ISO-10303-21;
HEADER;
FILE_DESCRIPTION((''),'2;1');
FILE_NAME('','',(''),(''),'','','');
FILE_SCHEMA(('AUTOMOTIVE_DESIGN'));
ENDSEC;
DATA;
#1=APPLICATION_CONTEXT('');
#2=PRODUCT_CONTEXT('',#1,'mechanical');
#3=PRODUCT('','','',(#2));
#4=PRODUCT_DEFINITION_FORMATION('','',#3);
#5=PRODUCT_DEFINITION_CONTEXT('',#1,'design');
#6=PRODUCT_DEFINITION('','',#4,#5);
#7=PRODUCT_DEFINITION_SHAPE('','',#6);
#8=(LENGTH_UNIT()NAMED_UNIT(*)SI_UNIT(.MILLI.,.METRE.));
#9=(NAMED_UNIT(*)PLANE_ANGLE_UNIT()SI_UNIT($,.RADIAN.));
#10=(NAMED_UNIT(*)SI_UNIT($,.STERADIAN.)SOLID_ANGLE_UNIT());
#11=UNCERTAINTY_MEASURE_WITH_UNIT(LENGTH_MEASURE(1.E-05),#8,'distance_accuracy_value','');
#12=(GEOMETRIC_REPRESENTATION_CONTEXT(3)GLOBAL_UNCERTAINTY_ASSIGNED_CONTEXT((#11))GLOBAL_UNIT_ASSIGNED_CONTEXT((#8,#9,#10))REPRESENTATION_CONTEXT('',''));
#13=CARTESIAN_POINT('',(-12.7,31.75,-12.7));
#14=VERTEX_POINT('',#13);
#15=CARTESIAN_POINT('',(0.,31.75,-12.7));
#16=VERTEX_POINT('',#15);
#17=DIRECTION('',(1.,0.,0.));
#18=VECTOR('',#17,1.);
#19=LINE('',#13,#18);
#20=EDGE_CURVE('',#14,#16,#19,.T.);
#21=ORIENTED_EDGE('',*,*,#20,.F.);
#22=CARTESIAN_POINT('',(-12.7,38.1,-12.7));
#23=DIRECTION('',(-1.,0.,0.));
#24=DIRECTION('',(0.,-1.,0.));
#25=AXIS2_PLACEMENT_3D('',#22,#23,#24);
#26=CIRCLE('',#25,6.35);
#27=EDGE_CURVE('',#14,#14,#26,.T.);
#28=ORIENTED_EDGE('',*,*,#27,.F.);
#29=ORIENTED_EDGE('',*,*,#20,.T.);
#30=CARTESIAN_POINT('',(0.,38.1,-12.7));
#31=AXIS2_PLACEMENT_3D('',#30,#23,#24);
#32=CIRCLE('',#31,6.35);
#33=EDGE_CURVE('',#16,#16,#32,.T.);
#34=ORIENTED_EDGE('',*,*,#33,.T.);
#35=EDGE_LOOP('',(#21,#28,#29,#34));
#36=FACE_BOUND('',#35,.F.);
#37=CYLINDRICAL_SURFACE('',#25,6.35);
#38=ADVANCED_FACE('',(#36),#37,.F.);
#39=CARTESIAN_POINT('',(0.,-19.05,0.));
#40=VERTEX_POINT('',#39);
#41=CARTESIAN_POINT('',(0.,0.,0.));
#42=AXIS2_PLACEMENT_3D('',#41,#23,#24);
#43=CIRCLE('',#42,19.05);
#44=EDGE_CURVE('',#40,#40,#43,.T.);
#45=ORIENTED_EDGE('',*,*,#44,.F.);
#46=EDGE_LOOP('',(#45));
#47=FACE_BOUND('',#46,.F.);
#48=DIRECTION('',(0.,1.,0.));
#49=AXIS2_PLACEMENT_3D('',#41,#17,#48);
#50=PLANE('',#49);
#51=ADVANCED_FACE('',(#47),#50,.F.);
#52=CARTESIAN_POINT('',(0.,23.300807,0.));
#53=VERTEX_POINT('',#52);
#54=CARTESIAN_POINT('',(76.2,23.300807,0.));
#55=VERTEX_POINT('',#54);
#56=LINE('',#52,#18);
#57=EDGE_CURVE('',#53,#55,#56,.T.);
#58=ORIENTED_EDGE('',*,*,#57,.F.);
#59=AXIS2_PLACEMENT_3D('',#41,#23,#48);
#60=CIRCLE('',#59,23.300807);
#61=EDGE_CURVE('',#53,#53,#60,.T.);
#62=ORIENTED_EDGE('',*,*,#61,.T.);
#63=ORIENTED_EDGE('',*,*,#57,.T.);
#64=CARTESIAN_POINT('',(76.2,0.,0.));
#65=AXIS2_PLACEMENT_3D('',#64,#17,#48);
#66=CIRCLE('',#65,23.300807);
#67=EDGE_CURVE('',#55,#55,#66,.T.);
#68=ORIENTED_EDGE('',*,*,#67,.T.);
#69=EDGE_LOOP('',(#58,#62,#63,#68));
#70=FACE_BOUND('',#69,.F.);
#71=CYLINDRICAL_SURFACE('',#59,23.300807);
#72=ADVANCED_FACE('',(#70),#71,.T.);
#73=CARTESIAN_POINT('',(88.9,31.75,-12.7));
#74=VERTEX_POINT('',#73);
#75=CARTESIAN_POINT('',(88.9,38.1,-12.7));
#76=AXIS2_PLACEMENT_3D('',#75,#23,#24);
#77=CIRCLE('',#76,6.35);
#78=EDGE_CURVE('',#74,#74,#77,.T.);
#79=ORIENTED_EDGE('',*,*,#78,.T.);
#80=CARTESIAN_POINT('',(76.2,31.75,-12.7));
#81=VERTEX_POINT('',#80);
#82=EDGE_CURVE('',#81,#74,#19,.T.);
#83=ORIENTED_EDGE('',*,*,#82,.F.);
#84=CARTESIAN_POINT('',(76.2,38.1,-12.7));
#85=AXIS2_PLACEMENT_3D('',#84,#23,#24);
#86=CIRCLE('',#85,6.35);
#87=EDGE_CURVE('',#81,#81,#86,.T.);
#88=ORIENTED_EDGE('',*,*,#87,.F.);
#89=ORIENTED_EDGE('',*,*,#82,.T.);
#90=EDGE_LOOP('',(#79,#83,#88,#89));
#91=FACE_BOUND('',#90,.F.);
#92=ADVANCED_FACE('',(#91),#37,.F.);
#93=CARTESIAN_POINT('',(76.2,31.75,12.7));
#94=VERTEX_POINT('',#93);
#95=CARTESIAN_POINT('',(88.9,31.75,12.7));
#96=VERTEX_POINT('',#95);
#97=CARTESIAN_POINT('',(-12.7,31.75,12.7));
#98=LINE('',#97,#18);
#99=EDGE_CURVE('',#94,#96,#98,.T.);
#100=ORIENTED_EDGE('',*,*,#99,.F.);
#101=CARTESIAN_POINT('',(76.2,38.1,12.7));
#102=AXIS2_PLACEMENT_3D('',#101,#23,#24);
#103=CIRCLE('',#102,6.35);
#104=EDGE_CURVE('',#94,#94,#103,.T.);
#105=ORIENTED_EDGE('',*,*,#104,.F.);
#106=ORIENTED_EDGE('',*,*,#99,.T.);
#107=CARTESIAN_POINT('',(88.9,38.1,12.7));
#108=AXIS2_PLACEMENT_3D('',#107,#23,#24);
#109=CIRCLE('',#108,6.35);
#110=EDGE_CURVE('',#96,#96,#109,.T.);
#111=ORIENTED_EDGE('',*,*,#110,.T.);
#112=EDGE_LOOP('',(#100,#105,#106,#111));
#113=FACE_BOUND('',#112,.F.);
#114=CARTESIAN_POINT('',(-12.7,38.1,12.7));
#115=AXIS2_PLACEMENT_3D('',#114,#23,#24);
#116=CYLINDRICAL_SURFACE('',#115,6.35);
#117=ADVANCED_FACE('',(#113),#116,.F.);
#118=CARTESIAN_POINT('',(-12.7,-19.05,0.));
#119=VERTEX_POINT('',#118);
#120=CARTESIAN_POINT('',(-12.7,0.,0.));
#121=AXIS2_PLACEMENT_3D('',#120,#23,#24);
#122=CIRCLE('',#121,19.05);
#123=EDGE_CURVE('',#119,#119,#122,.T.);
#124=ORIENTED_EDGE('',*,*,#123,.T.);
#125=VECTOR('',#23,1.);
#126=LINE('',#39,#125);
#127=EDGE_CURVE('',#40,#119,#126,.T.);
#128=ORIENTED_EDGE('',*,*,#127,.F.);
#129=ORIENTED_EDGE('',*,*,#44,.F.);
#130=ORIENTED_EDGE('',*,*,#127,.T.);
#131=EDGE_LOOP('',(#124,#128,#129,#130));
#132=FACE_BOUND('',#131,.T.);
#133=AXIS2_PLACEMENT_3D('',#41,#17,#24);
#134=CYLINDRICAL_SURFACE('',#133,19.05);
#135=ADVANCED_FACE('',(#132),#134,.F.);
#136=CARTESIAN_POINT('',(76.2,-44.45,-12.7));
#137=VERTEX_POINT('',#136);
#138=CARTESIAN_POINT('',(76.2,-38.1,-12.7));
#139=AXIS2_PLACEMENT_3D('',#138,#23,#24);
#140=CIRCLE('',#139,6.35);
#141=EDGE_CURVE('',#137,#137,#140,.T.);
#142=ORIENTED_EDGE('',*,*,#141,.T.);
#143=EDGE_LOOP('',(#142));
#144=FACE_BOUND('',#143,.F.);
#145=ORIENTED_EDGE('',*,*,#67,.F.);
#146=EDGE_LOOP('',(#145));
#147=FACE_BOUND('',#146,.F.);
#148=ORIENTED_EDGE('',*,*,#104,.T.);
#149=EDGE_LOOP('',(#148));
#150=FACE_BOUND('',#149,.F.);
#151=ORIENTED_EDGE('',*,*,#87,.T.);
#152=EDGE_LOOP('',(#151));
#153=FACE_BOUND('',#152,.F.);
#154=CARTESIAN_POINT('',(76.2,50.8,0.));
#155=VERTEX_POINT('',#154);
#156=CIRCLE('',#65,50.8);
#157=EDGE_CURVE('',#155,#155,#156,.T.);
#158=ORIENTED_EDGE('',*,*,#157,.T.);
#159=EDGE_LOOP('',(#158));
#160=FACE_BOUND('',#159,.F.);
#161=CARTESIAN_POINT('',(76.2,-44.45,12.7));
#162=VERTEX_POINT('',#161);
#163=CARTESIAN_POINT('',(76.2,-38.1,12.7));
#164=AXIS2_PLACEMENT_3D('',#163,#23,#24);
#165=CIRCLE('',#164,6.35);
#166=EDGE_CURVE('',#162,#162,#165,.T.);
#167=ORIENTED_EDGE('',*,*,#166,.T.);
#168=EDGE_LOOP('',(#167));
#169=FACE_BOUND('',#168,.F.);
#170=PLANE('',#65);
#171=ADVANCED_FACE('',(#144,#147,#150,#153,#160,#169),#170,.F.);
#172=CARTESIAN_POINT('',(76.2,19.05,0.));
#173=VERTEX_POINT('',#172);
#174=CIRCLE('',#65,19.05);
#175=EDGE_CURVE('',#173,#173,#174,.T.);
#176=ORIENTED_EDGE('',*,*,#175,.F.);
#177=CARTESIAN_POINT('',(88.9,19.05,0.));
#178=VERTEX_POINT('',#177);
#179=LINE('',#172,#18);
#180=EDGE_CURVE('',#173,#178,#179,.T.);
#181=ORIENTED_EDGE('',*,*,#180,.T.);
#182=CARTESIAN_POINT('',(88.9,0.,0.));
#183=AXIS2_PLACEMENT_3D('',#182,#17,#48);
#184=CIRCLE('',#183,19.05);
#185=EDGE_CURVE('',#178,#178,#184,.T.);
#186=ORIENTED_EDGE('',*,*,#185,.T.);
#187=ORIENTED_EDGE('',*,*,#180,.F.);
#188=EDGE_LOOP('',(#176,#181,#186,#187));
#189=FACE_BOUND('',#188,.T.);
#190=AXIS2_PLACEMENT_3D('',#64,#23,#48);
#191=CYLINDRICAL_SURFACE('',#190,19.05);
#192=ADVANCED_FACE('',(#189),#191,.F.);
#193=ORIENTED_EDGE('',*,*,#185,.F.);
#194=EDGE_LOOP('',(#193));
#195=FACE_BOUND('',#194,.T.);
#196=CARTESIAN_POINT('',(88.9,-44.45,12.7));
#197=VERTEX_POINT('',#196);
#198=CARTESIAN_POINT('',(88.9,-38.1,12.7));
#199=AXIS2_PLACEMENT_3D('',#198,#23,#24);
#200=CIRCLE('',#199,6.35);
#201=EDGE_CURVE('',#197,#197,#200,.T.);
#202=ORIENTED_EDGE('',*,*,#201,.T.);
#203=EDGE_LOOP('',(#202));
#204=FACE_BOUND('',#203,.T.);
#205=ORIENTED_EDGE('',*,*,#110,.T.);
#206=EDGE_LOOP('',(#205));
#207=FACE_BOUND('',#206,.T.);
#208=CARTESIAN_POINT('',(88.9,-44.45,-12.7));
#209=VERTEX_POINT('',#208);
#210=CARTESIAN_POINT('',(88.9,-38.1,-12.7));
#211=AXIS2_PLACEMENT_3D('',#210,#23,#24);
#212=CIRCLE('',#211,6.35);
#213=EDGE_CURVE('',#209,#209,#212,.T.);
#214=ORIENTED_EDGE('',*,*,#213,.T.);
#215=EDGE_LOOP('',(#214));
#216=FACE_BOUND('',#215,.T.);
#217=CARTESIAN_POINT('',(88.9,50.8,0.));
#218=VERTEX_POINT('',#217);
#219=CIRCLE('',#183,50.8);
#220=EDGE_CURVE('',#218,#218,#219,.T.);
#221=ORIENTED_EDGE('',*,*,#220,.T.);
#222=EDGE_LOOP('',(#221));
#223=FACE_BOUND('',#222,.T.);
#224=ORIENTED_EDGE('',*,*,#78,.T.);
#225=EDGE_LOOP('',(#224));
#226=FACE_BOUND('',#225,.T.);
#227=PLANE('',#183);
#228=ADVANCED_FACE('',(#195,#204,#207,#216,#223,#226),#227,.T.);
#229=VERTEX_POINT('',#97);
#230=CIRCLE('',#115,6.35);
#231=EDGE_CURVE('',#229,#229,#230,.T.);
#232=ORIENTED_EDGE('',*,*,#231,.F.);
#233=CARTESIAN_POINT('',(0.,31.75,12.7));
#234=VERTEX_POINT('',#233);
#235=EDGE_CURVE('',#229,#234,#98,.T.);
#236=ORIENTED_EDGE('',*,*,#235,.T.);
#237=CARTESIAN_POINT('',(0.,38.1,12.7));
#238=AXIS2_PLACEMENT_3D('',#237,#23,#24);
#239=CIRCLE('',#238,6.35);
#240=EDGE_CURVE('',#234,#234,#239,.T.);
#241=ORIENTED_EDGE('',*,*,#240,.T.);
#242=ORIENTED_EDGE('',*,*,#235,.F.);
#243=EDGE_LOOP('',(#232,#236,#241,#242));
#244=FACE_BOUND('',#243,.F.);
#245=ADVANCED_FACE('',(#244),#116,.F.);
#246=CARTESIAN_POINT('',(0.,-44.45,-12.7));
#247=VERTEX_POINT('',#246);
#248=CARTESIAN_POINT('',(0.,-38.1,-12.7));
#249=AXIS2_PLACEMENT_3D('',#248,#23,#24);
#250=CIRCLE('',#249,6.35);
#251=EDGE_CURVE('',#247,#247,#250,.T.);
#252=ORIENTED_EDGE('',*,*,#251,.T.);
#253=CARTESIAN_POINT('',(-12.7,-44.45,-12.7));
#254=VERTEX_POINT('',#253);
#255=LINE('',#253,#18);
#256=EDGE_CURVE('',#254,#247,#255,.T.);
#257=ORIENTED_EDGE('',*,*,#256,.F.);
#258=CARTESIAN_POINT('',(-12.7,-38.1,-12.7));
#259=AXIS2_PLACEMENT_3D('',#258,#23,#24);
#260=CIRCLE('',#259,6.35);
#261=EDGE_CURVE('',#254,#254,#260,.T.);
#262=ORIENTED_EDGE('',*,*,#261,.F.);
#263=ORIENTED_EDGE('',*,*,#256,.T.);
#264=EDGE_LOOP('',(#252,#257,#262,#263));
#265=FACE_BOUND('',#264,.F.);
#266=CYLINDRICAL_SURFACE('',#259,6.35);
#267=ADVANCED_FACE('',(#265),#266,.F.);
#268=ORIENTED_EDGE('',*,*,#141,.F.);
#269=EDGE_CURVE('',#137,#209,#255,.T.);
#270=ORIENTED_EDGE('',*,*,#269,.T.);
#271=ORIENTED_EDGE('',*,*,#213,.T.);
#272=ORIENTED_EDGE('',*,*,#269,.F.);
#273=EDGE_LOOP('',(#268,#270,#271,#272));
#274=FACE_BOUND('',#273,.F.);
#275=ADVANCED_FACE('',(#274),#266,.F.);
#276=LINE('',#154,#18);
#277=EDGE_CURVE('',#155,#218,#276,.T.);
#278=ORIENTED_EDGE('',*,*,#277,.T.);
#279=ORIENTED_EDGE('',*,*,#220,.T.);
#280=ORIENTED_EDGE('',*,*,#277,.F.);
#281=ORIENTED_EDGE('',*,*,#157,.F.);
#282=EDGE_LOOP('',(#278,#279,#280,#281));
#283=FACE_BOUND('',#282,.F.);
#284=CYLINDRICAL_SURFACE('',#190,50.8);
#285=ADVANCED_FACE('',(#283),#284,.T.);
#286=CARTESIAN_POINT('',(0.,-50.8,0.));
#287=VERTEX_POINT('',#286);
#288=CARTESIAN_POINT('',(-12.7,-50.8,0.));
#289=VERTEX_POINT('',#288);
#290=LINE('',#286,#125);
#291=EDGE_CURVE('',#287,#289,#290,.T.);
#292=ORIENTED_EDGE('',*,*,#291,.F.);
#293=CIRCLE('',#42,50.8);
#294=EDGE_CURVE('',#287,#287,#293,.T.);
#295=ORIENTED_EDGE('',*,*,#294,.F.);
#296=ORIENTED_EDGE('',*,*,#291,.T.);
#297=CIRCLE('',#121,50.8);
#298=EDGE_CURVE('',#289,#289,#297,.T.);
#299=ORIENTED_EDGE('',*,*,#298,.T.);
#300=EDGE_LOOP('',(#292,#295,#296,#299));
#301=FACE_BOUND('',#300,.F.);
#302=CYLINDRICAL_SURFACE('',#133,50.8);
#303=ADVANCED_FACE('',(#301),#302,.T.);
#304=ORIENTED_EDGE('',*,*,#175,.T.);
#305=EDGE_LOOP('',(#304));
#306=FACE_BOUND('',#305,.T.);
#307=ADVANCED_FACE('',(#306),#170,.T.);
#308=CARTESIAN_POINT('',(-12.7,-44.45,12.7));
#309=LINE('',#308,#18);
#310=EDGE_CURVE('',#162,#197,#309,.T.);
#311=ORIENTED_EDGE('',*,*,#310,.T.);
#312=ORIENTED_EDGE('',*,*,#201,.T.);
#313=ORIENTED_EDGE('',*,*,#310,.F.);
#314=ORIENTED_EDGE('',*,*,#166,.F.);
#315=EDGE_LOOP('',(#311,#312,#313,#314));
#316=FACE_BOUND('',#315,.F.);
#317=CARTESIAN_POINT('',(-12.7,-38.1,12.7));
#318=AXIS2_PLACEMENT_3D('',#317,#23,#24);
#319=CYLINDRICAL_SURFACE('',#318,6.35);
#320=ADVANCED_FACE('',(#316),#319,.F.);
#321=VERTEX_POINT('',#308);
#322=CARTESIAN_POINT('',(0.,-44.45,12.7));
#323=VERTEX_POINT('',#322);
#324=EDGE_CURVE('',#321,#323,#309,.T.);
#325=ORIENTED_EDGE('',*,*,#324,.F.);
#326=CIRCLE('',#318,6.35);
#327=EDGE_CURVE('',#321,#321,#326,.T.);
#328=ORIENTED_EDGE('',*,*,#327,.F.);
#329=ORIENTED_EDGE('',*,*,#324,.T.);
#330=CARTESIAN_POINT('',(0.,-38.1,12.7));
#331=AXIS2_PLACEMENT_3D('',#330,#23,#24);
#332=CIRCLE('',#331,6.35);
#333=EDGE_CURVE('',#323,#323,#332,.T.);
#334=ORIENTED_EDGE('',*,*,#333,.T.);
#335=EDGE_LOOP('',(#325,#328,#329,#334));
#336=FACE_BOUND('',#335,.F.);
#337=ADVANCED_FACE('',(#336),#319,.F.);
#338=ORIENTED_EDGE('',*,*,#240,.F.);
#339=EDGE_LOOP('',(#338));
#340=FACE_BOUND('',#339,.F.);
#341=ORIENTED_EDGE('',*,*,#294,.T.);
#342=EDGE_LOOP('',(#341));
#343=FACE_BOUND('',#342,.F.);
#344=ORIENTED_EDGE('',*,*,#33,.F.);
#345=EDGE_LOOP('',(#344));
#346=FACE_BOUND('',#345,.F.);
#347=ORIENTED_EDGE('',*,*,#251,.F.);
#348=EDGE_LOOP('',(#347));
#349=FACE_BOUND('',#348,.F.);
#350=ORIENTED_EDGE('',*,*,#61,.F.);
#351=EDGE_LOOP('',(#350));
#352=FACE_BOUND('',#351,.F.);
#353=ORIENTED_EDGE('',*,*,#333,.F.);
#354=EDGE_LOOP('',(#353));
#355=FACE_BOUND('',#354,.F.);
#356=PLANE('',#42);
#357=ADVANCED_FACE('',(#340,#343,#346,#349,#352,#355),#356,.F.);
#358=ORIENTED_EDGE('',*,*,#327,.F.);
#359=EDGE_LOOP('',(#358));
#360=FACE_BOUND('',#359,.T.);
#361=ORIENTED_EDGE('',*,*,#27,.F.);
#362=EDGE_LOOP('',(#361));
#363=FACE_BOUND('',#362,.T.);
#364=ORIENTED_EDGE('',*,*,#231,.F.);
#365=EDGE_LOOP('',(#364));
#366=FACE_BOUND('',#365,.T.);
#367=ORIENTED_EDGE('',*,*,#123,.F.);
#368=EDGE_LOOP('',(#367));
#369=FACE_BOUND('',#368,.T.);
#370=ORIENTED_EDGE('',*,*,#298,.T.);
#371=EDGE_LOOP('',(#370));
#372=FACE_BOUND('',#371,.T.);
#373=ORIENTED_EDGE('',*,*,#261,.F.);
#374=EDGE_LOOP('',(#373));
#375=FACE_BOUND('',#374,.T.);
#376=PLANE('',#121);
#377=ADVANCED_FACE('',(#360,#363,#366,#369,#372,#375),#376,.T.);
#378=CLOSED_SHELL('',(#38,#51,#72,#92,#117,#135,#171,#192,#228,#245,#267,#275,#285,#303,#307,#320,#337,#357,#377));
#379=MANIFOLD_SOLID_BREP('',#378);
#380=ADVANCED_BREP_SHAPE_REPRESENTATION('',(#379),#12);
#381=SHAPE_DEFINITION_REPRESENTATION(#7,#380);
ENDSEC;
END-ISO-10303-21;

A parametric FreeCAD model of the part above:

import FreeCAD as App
import Part
import Sketcher
Q = App.Units.Quantity

doc = App.newDocument("Part")
body = doc.addObject("PartDesign::Body", "Body")

# Sketch on YZ plane
sketch1 = body.newObject("Sketcher::SketchObject", "Sketch")
sketch1.AttachmentSupport = (doc.getObject("YZ_Plane"), [""])
sketch1.MapMode = "FlatFace"
sketch1.addGeometry(Part.Circle(App.Vector(0, 0, 0), App.Vector(0, 0, 1), 23), False)
sketch1.addConstraint([
    Sketcher.Constraint("Coincident", 0, 3, -1, 1),
    Sketcher.Constraint("Diameter", 0, 46.601614),
])
pad1 = body.newObject("PartDesign::Pad", "Pad")
pad1.Profile = sketch1
pad1.Length = Q("3 in")
body2 = doc.addObject("PartDesign::Body", "Body001")

# Sketch on YZ plane
sketch2 = body2.newObject("Sketcher::SketchObject", "Sketch001")
sketch2.AttachmentSupport = (doc.getObject("YZ_Plane001"), [""])
sketch2.MapMode = "FlatFace"
sketch2.addGeometry([
    Part.Circle(App.Vector(0, 0, 0), App.Vector(0, 0, 1), 51),
    Part.Circle(App.Vector(0, 0, 0), App.Vector(0, 0, 1), 23),
], False)
sketch2.addConstraint([
    Sketcher.Constraint("Coincident", 0, 3, -1, 1),
    Sketcher.Constraint("Coincident", 1, 3, -1, 1),
    Sketcher.Constraint("Diameter", 0, Q("4 in")),
    Sketcher.Constraint("Diameter", 1, 46.601614),
])
pad2 = body2.newObject("PartDesign::Pad", "Pad001")
pad2.Profile = sketch2
pad2.Length = Q("0.5 in")
pad2.Reversed = True
body3 = doc.addObject("PartDesign::Body", "Body002")

# Sketch on YZ plane
sketch3 = body3.newObject("Sketcher::SketchObject", "Sketch002")
sketch3.AttachmentSupport = (doc.getObject("YZ_Plane002"), [""])
sketch3.MapMode = "FlatFace"
sketch3.AttachmentOffset = App.Placement(App.Vector(0, 0, 3 * 25.4), App.Rotation())
sketch3.addGeometry([
    Part.Circle(App.Vector(0, 0, 0), App.Vector(0, 0, 1), 51),
    Part.Circle(App.Vector(0, 0, 0), App.Vector(0, 0, 1), 23),
], False)
sketch3.addConstraint([
    Sketcher.Constraint("Coincident", 0, 3, -1, 1),
    Sketcher.Constraint("Coincident", 1, 3, -1, 1),
    Sketcher.Constraint("Diameter", 0, Q("4 in")),
    Sketcher.Constraint("Diameter", 1, 46.601614),
])
pad3 = body3.newObject("PartDesign::Pad", "Pad002")
pad3.Profile = sketch3
pad3.Length = Q("0.5 in")
body.AllowCompound = True
doc.recompute()

boolean = body.newObject("PartDesign::Boolean", "Boolean")
boolean.Type = "Fuse"
boolean.addObjects([body3])

# Sketch on YZ plane
sketch4 = body.newObject("Sketcher::SketchObject", "Sketch003")
sketch4.AttachmentSupport = (doc.getObject("YZ_Plane"), [""])
sketch4.MapMode = "FlatFace"
sketch4.AttachmentOffset = App.Placement(App.Vector(0, 0, 3 * 25.4), App.Rotation())
sketch4.addGeometry([
    Part.Circle(App.Vector(0, 0, 0), App.Vector(0, 0, 1), 23),
    Part.Circle(App.Vector(0, 0, 0), App.Vector(0, 0, 1), 19),
], False)
sketch4.addConstraint([
    Sketcher.Constraint("Coincident", 0, 3, -1, 1),
    Sketcher.Constraint("Coincident", 1, 3, -1, 1),
    Sketcher.Constraint("Diameter", 1, Q("1.5 in")),
    Sketcher.Constraint("Diameter", 0, 46.601614),
])
pad4 = body.newObject("PartDesign::Pad", "Pad003")
pad4.Profile = sketch4
pad4.Length = Q("0.5 in")
doc.recompute()

boolean2 = body.newObject("PartDesign::Boolean", "Boolean001")
boolean2.Type = "Fuse"
boolean2.addObjects([body2])

# Sketch on YZ plane
sketch5 = body.newObject("Sketcher::SketchObject", "Sketch004")
sketch5.AttachmentSupport = (doc.getObject("YZ_Plane"), [""])
sketch5.MapMode = "FlatFace"
sketch5.addGeometry([
    Part.Circle(App.Vector(0, 0, 0), App.Vector(0, 0, 1), 23),
    Part.Circle(App.Vector(0, 0, 0), App.Vector(0, 0, 1), 19),
], False)
sketch5.addConstraint([
    Sketcher.Constraint("Coincident", 0, 3, -1, 1),
    Sketcher.Constraint("Coincident", 1, 3, -1, 1),
    Sketcher.Constraint("Diameter", 1, Q("1.5 in")),
    Sketcher.Constraint("Diameter", 0, 46.601614),
])
pad5 = body.newObject("PartDesign::Pad", "Pad004")
pad5.Profile = sketch5
pad5.Length = Q("0.5 in")
pad5.Reversed = True

# Sketch on YZ plane
sketch6 = body.newObject("Sketcher::SketchObject", "Sketch005")
sketch6.AttachmentSupport = (doc.getObject("YZ_Plane"), [""])
sketch6.MapMode = "FlatFace"
sketch6.AttachmentOffset = App.Placement(App.Vector(0, 0, -0.5 * 25.4), App.Rotation())
sketch6.addGeometry([
    Part.Circle(App.Vector(38, 13, 0), App.Vector(0, 0, 1), 6),
    Part.Circle(App.Vector(38, -13, 0), App.Vector(0, 0, 1), 6),
    Part.Circle(App.Vector(-38, -13, 0), App.Vector(0, 0, 1), 6),
    Part.Circle(App.Vector(-38, 13, 0), App.Vector(0, 0, 1), 6),
], False)
sketch6.addConstraint([
    Sketcher.Constraint("Equal", 0, 1),
    Sketcher.Constraint("Equal", 1, 2),
    Sketcher.Constraint("Equal", 2, 3),
    Sketcher.Constraint("Symmetric", 0, 3, 2, 3, -1, 1),
    Sketcher.Constraint("Symmetric", 1, 3, 3, 3, -1, 1),
    Sketcher.Constraint("Symmetric", 1, 3, 2, 3, -2),
    Sketcher.Constraint("Diameter", 0, Q("0.5 in")),
    Sketcher.Constraint("DistanceY", 1, 3, 0, 3, Q("1 in")),
    Sketcher.Constraint("DistanceX", 2, 3, 1, 3, Q("3 in")),
])
pocket1 = body.newObject("PartDesign::Pocket", "Pocket")
pocket1.Profile = sketch6
pocket1.Length = Q("100 in")
pocket1.Reversed = True

doc.recompute()
